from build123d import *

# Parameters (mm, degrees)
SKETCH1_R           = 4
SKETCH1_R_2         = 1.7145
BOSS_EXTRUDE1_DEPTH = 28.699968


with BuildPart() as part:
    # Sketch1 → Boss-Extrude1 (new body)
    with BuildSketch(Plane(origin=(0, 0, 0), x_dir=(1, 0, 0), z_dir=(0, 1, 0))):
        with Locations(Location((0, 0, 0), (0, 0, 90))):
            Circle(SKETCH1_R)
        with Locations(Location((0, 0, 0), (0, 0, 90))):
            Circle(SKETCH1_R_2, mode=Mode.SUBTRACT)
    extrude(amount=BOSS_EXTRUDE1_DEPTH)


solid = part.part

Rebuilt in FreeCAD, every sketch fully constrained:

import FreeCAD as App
import Part
import Sketcher

doc = App.newDocument("Part")
body = doc.addObject("PartDesign::Body", "Body")

# Sketch on XZ plane
sketch1 = body.newObject("Sketcher::SketchObject", "Sketch")
sketch1.AttachmentSupport = (doc.getObject("XZ_Plane"), [""])
sketch1.MapMode = "FlatFace"
sketch1.addGeometry([
    Part.Circle(App.Vector(0, 0, 0), App.Vector(0, 0, 1), 4),
    Part.Circle(App.Vector(0, 0, 0), App.Vector(0, 0, 1), 1.7145),
], False)
sketch1.addConstraint([
    Sketcher.Constraint("Coincident", 0, 3, -1, 1),
    Sketcher.Constraint("Coincident", 1, 3, -1, 1),
    Sketcher.Constraint("Diameter", 0, 8.0),
    Sketcher.Constraint("Diameter", 1, 3.429),
])
pad1 = body.newObject("PartDesign::Pad", "Pad")
pad1.Profile = sketch1
pad1.Length = 28.699968
pad1.Reversed = True

doc.recompute()
